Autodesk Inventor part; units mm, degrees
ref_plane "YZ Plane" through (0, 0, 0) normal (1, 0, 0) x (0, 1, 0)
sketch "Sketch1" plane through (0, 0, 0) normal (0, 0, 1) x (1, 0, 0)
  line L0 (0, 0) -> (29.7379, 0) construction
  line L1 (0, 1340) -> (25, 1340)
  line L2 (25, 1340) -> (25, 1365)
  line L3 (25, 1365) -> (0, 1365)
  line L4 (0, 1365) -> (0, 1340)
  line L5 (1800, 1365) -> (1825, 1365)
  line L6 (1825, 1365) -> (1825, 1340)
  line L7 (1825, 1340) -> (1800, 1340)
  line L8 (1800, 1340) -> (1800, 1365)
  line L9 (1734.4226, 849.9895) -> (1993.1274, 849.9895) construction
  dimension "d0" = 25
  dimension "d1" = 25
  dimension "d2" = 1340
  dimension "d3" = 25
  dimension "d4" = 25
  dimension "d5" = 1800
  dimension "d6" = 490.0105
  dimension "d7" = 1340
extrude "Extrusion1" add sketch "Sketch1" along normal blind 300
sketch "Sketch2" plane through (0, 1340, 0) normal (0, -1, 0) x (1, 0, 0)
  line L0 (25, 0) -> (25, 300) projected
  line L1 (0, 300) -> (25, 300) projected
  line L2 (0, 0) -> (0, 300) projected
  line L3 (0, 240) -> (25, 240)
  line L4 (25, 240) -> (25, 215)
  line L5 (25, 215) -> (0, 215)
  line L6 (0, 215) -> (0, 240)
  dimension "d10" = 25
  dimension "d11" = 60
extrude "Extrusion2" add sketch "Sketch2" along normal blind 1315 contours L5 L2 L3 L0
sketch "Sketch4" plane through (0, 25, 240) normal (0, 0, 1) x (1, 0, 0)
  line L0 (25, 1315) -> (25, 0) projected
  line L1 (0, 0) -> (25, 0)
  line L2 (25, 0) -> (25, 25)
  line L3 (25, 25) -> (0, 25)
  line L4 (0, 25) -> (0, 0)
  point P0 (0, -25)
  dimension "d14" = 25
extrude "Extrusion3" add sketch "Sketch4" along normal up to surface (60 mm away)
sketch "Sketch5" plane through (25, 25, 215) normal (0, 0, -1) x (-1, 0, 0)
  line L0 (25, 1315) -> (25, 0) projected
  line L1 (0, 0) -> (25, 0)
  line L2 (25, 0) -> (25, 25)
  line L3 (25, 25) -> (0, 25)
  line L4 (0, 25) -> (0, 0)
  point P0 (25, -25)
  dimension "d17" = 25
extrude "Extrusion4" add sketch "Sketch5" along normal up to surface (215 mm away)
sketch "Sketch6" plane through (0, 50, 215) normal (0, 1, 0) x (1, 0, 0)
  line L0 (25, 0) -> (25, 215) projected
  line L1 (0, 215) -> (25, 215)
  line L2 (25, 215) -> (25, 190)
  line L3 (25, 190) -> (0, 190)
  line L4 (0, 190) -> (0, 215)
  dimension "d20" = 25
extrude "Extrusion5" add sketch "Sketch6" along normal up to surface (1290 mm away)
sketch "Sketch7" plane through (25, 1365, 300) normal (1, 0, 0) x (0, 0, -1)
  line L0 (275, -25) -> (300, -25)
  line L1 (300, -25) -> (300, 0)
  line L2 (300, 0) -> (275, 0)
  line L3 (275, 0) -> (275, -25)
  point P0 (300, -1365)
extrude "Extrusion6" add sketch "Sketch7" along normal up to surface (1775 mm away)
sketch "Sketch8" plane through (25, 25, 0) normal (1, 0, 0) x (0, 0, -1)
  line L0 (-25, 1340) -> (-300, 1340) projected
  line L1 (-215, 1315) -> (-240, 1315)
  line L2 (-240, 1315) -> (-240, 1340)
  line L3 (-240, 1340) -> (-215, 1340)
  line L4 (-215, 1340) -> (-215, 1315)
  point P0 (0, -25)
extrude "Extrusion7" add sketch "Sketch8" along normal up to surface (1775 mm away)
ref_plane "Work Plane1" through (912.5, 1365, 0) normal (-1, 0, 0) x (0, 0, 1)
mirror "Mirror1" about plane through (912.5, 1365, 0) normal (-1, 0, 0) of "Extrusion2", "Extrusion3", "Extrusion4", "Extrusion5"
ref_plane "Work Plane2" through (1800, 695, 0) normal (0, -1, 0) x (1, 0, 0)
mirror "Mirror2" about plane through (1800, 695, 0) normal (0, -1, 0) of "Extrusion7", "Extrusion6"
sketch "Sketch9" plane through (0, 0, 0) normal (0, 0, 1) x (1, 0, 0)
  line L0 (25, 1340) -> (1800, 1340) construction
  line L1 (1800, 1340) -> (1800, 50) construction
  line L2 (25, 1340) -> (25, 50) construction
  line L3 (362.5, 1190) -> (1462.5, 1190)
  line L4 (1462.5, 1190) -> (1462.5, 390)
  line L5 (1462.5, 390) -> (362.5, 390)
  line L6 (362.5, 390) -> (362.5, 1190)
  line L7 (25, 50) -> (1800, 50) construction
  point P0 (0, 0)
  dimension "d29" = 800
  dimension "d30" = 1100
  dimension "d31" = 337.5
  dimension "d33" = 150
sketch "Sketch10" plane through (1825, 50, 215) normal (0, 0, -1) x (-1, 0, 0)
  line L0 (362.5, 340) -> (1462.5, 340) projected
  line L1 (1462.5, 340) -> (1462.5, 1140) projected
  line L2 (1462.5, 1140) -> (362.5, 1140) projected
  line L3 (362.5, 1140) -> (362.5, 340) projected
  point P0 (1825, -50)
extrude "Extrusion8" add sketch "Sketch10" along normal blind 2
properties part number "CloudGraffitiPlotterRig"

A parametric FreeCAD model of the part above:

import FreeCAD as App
import Part
import Sketcher
from FreeCAD import Vector
Q = App.Units.Quantity

doc = App.newDocument("Part")
body = doc.addObject("PartDesign::Body", "Body")
body.AllowCompound = True

# Sketch on XY plane
sketch1 = body.newObject("Sketcher::SketchObject", "Sketch")
sketch1.AttachmentSupport = (doc.getObject("XY_Plane"), [""])
sketch1.MapMode = "FlatFace"
sketch1.addGeometry([
    Part.LineSegment(Vector(0, 1365, 0), Vector(0, 1340, 0)),  # 0
    Part.LineSegment(Vector(0, 1340, 0), Vector(25, 1340, 0)),  # 1
    Part.LineSegment(Vector(25, 1340, 0), Vector(25, 1365, 0)),  # 2
    Part.LineSegment(Vector(25, 1365, 0), Vector(0, 1365, 0)),  # 3
    Part.LineSegment(Vector(1825, 1365, 0), Vector(1800, 1365, 0)),  # 4
    Part.LineSegment(Vector(1800, 1365, 0), Vector(1800, 1340, 0)),  # 5
    Part.LineSegment(Vector(1800, 1340, 0), Vector(1825, 1340, 0)),  # 6
    Part.LineSegment(Vector(1825, 1340, 0), Vector(1825, 1365, 0)),  # 7
], False)
sketch1.addConstraint([
    Sketcher.Constraint("Coincident", 0, 2, 1, 1),
    Sketcher.Constraint("Coincident", 1, 2, 2, 1),
    Sketcher.Constraint("Coincident", 2, 2, 3, 1),
    Sketcher.Constraint("Coincident", 3, 2, 0, 1),
    Sketcher.Constraint("Coincident", 4, 2, 5, 1),
    Sketcher.Constraint("Coincident", 5, 2, 6, 1),
    Sketcher.Constraint("Coincident", 6, 2, 7, 1),
    Sketcher.Constraint("Coincident", 7, 2, 4, 1),
    Sketcher.Constraint("Vertical", 0),
    Sketcher.Constraint("Horizontal", 1),
    Sketcher.Constraint("Vertical", 2),
    Sketcher.Constraint("Horizontal", 3),
    Sketcher.Constraint("Horizontal", 4),
    Sketcher.Constraint("Vertical", 5),
    Sketcher.Constraint("Horizontal", 6),
    Sketcher.Constraint("Vertical", 7),
    Sketcher.Constraint("PointOnObject", 0, 2, -2),
    Sketcher.Constraint("Horizontal", 3, 2, 4, 2),
    Sketcher.Constraint("Horizontal", 1, 2, 5, 2),
    Sketcher.Constraint("Equal", 3, 4),
    Sketcher.Constraint("Equal", 6, 0),
    Sketcher.Constraint("DistanceX", 1, 1, 1, 2, Q("25 mm")),
    Sketcher.Constraint("DistanceY", -1, 1, 0, 2, Q("1340 mm")),
    Sketcher.Constraint("DistanceX", -1, 1, 4, 2, Q("1800 mm")),
])
pad1 = body.newObject("PartDesign::Pad", "Pad")
pad1.Profile = sketch1
pad1.Length = 300

# Sketch on XZ plane
sketch2 = body.newObject("Sketcher::SketchObject", "Sketch001")
sketch2.AttachmentSupport = (doc.getObject("XZ_Plane"), [""])
sketch2.MapMode = "FlatFace"
sketch2.AttachmentOffset = App.Placement(Vector(0, 0, -1340), App.Rotation())
sketch2.addGeometry([
    Part.LineSegment(Vector(0, 215, 0), Vector(25, 215, 0)),
    Part.LineSegment(Vector(25, 215, 0), Vector(25, 240, 0)),
    Part.LineSegment(Vector(25, 240, 0), Vector(0, 240, 0)),
    Part.LineSegment(Vector(0, 240, 0), Vector(0, 215, 0)),
], False)
sketch2.addConstraint([
    Sketcher.Constraint("Coincident", 0, 2, 1, 1),
    Sketcher.Constraint("Coincident", 1, 2, 2, 1),
    Sketcher.Constraint("Coincident", 2, 2, 3, 1),
    Sketcher.Constraint("Coincident", 3, 2, 0, 1),
    Sketcher.Constraint("Horizontal", 0),
    Sketcher.Constraint("Vertical", 1),
    Sketcher.Constraint("Horizontal", 2),
    Sketcher.Constraint("Vertical", 3),
    Sketcher.Constraint("PointOnObject", 2, 2, -2),
    Sketcher.Constraint("Equal", 2, 1),
    Sketcher.Constraint("DistanceX", 0, 1, 0, 2, Q("25 mm")),
    Sketcher.Constraint("DistanceY", -1, 1, 0, 2, Q("215 mm")),
])
pad2 = body.newObject("PartDesign::Pad", "Pad001")
pad2.Profile = sketch2
pad2.Length = 1315

# Sketch on XY plane
sketch3 = body.newObject("Sketcher::SketchObject", "Sketch002")
sketch3.AttachmentSupport = (doc.getObject("XY_Plane"), [""])
sketch3.MapMode = "FlatFace"
sketch3.AttachmentOffset = App.Placement(Vector(0, 0, 240), App.Rotation())
sketch3.addGeometry([
    Part.LineSegment(Vector(25, 25, 0), Vector(25, 50, 0)),
    Part.LineSegment(Vector(25, 50, 0), Vector(0, 50, 0)),
    Part.LineSegment(Vector(0, 50, 0), Vector(0, 25, 0)),
    Part.LineSegment(Vector(0, 25, 0), Vector(25, 25, 0)),
], False)
sketch3.addConstraint([
    Sketcher.Constraint("Coincident", 0, 2, 1, 1),
    Sketcher.Constraint("Coincident", 1, 2, 2, 1),
    Sketcher.Constraint("Coincident", 2, 2, 3, 1),
    Sketcher.Constraint("Coincident", 3, 2, 0, 1),
    Sketcher.Constraint("Vertical", 0),
    Sketcher.Constraint("Horizontal", 1),
    Sketcher.Constraint("Vertical", 2),
    Sketcher.Constraint("Horizontal", 3),
    Sketcher.Constraint("PointOnObject", 1, 2, -2),
    Sketcher.Constraint("Equal", 3, 0),
    Sketcher.Constraint("DistanceX", 1, 2, 1, 1, Q("25 mm")),
    Sketcher.Constraint("DistanceY", -1, 1, 2, 2, Q("25 mm")),
])
pad3 = body.newObject("PartDesign::Pad", "Pad002")
pad3.Profile = sketch3
pad3.Length = 60

# Sketch on XY plane
sketch4 = body.newObject("Sketcher::SketchObject", "Sketch003")
sketch4.AttachmentSupport = (doc.getObject("XY_Plane"), [""])
sketch4.MapMode = "FlatFace"
sketch4.AttachmentOffset = App.Placement(Vector(0, 0, 215), App.Rotation())
sketch4.addGeometry([
    Part.LineSegment(Vector(0, 25, 0), Vector(0, 50, 0)),
    Part.LineSegment(Vector(0, 50, 0), Vector(25, 50, 0)),
    Part.LineSegment(Vector(25, 50, 0), Vector(25, 25, 0)),
    Part.LineSegment(Vector(25, 25, 0), Vector(0, 25, 0)),
], False)
sketch4.addConstraint([
    Sketcher.Constraint("Coincident", 0, 2, 1, 1),
    Sketcher.Constraint("Coincident", 1, 2, 2, 1),
    Sketcher.Constraint("Coincident", 2, 2, 3, 1),
    Sketcher.Constraint("Coincident", 3, 2, 0, 1),
    Sketcher.Constraint("Vertical", 0),
    Sketcher.Constraint("Horizontal", 1),
    Sketcher.Constraint("Vertical", 2),
    Sketcher.Constraint("Horizontal", 3),
    Sketcher.Constraint("PointOnObject", 0, 2, -2),
    Sketcher.Constraint("Equal", 3, 0),
    Sketcher.Constraint("DistanceX", 1, 1, 1, 2, Q("25 mm")),
    Sketcher.Constraint("DistanceY", -1, 1, 2, 2, Q("25 mm")),
])
pad4 = body.newObject("PartDesign::Pad", "Pad003")
pad4.Profile = sketch4
pad4.Length = 215
pad4.Reversed = True

# Sketch on XZ plane
sketch5 = body.newObject("Sketcher::SketchObject", "Sketch004")
sketch5.AttachmentSupport = (doc.getObject("XZ_Plane"), [""])
sketch5.MapMode = "FlatFace"
sketch5.AttachmentOffset = App.Placement(Vector(0, 0, -50), App.Rotation())
sketch5.addGeometry([
    Part.LineSegment(Vector(0, 25, 0), Vector(25, 25, 0)),
    Part.LineSegment(Vector(25, 25, 0), Vector(25, 0, 0)),
    Part.LineSegment(Vector(25, 0, 0), Vector(0, 0, 0)),
    Part.LineSegment(Vector(0, 0, 0), Vector(0, 25, 0)),
], False)
sketch5.addConstraint([
    Sketcher.Constraint("Coincident", 0, 2, 1, 1),
    Sketcher.Constraint("Coincident", 1, 2, 2, 1),
    Sketcher.Constraint("Coincident", 2, 2, 3, 1),
    Sketcher.Constraint("Coincident", 3, 2, 0, 1),
    Sketcher.Constraint("Horizontal", 0),
    Sketcher.Constraint("Vertical", 1),
    Sketcher.Constraint("Horizontal", 2),
    Sketcher.Constraint("Vertical", 3),
    Sketcher.Constraint("Coincident", 2, 2, -1, 1),
    Sketcher.Constraint("Equal", 2, 1),
    Sketcher.Constraint("DistanceX", 0, 1, 0, 2, Q("25 mm")),
])
pad5 = body.newObject("PartDesign::Pad", "Pad004")
pad5.Profile = sketch5
pad5.Length = 1290
pad5.Reversed = True

# Sketch on YZ plane
sketch6 = body.newObject("Sketcher::SketchObject", "Sketch005")
sketch6.AttachmentSupport = (doc.getObject("YZ_Plane"), [""])
sketch6.MapMode = "FlatFace"
sketch6.AttachmentOffset = App.Placement(Vector(0, 0, 25), App.Rotation())
sketch6.addGeometry([
    Part.LineSegment(Vector(1365, 25, 0), Vector(1340, 25, 0)),
    Part.LineSegment(Vector(1340, 25, 0), Vector(1340, 0, 0)),
    Part.LineSegment(Vector(1340, 0, 0), Vector(1365, 0, 0)),
    Part.LineSegment(Vector(1365, 0, 0), Vector(1365, 25, 0)),
], False)
sketch6.addConstraint([
    Sketcher.Constraint("Coincident", 0, 2, 1, 1),
    Sketcher.Constraint("Coincident", 1, 2, 2, 1),
    Sketcher.Constraint("Coincident", 2, 2, 3, 1),
    Sketcher.Constraint("Coincident", 3, 2, 0, 1),
    Sketcher.Constraint("Horizontal", 0),
    Sketcher.Constraint("Vertical", 1),
    Sketcher.Constraint("Horizontal", 2),
    Sketcher.Constraint("Vertical", 3),
    Sketcher.Constraint("PointOnObject", 1, 2, -1),
    Sketcher.Constraint("Equal", 2, 1),
    Sketcher.Constraint("DistanceX", 0, 2, 0, 1, Q("25 mm")),
    Sketcher.Constraint("DistanceX", -1, 1, 0, 2, Q("1340 mm")),
])
pad6 = body.newObject("PartDesign::Pad", "Pad005")
pad6.Profile = sketch6
pad6.Length = 1775

# Sketch on YZ plane
sketch7 = body.newObject("Sketcher::SketchObject", "Sketch006")
sketch7.AttachmentSupport = (doc.getObject("YZ_Plane"), [""])
sketch7.MapMode = "FlatFace"
sketch7.AttachmentOffset = App.Placement(Vector(0, 0, 25), App.Rotation())
sketch7.addGeometry([
    Part.LineSegment(Vector(1340, 215, 0), Vector(1365, 215, 0)),
    Part.LineSegment(Vector(1365, 215, 0), Vector(1365, 240, 0)),
    Part.LineSegment(Vector(1365, 240, 0), Vector(1340, 240, 0)),
    Part.LineSegment(Vector(1340, 240, 0), Vector(1340, 215, 0)),
], False)
sketch7.addConstraint([
    Sketcher.Constraint("Coincident", 0, 2, 1, 1),
    Sketcher.Constraint("Coincident", 1, 2, 2, 1),
    Sketcher.Constraint("Coincident", 2, 2, 3, 1),
    Sketcher.Constraint("Coincident", 3, 2, 0, 1),
    Sketcher.Constraint("Horizontal", 0),
    Sketcher.Constraint("Vertical", 1),
    Sketcher.Constraint("Horizontal", 2),
    Sketcher.Constraint("Vertical", 3),
    Sketcher.Constraint("Equal", 2, 1),
    Sketcher.Constraint("DistanceX", 0, 1, 0, 2, Q("25 mm")),
    Sketcher.Constraint("DistanceX", -1, 1, 0, 2, Q("1365 mm")),
    Sketcher.Constraint("DistanceY", -1, 1, 0, 2, Q("215 mm")),
])
pad7 = body.newObject("PartDesign::Pad", "Pad006")
pad7.Profile = sketch7
pad7.Length = 1775
doc.recompute()

datumplane = body.newObject("PartDesign::Plane", "DatumPlane")
datumplane.AttachmentSupport = (doc.getObject("YZ_Plane"), [""])
datumplane.MapMode = "FlatFace"
datumplane.AttachmentOffset = App.Placement(Vector(0, 0, 912.5), App.Rotation())
mirrored = body.newObject("PartDesign::Mirrored", "Mirrored")
mirrored.Originals = [pad2, pad3, pad4, pad5]
mirrored.MirrorPlane = (datumplane, [""])
body.Tip = mirrored
doc.recompute()

datumplane2 = body.newObject("PartDesign::Plane", "DatumPlane001")
datumplane2.AttachmentSupport = (doc.getObject("XZ_Plane"), [""])
datumplane2.MapMode = "FlatFace"
datumplane2.AttachmentOffset = App.Placement(Vector(0, 0, -695), App.Rotation())
mirrored2 = body.newObject("PartDesign::Mirrored", "Mirrored001")
mirrored2.Originals = [pad7, pad6]
mirrored2.MirrorPlane = (datumplane2, [""])
body.Tip = mirrored2

# Sketch on XY plane
sketch8 = body.newObject("Sketcher::SketchObject", "Sketch007")
sketch8.AttachmentSupport = (doc.getObject("XY_Plane"), [""])
sketch8.MapMode = "FlatFace"
sketch8.AttachmentOffset = App.Placement(Vector(0, 0, 215), App.Rotation())
sketch8.addGeometry([
    Part.LineSegment(Vector(1462, 1190, 0), Vector(1462, 390, 0)),
    Part.LineSegment(Vector(1462, 390, 0), Vector(362, 390, 0)),
    Part.LineSegment(Vector(362, 390, 0), Vector(362, 1190, 0)),
    Part.LineSegment(Vector(362, 1190, 0), Vector(1462, 1190, 0)),
], False)
sketch8.addConstraint([
    Sketcher.Constraint("Coincident", 0, 2, 1, 1),
    Sketcher.Constraint("Coincident", 1, 2, 2, 1),
    Sketcher.Constraint("Coincident", 2, 2, 3, 1),
    Sketcher.Constraint("Coincident", 3, 2, 0, 1),
    Sketcher.Constraint("Vertical", 0),
    Sketcher.Constraint("Horizontal", 1),
    Sketcher.Constraint("Vertical", 2),
    Sketcher.Constraint("Horizontal", 3),
    Sketcher.Constraint("DistanceX", 1, 2, 1, 1, Q("1100 mm")),
    Sketcher.Constraint("DistanceY", 0, 2, 0, 1, Q("800 mm")),
    Sketcher.Constraint("DistanceY", -1, 1, 0, 2, Q("390 mm")),
    Sketcher.Constraint("DistanceX", -1, 1, 0, 2, Q("1462.5 mm")),
])
pad8 = body.newObject("PartDesign::Pad", "Pad007")
pad8.Profile = sketch8
pad8.Length = 2
pad8.Reversed = True

doc.recompute()
